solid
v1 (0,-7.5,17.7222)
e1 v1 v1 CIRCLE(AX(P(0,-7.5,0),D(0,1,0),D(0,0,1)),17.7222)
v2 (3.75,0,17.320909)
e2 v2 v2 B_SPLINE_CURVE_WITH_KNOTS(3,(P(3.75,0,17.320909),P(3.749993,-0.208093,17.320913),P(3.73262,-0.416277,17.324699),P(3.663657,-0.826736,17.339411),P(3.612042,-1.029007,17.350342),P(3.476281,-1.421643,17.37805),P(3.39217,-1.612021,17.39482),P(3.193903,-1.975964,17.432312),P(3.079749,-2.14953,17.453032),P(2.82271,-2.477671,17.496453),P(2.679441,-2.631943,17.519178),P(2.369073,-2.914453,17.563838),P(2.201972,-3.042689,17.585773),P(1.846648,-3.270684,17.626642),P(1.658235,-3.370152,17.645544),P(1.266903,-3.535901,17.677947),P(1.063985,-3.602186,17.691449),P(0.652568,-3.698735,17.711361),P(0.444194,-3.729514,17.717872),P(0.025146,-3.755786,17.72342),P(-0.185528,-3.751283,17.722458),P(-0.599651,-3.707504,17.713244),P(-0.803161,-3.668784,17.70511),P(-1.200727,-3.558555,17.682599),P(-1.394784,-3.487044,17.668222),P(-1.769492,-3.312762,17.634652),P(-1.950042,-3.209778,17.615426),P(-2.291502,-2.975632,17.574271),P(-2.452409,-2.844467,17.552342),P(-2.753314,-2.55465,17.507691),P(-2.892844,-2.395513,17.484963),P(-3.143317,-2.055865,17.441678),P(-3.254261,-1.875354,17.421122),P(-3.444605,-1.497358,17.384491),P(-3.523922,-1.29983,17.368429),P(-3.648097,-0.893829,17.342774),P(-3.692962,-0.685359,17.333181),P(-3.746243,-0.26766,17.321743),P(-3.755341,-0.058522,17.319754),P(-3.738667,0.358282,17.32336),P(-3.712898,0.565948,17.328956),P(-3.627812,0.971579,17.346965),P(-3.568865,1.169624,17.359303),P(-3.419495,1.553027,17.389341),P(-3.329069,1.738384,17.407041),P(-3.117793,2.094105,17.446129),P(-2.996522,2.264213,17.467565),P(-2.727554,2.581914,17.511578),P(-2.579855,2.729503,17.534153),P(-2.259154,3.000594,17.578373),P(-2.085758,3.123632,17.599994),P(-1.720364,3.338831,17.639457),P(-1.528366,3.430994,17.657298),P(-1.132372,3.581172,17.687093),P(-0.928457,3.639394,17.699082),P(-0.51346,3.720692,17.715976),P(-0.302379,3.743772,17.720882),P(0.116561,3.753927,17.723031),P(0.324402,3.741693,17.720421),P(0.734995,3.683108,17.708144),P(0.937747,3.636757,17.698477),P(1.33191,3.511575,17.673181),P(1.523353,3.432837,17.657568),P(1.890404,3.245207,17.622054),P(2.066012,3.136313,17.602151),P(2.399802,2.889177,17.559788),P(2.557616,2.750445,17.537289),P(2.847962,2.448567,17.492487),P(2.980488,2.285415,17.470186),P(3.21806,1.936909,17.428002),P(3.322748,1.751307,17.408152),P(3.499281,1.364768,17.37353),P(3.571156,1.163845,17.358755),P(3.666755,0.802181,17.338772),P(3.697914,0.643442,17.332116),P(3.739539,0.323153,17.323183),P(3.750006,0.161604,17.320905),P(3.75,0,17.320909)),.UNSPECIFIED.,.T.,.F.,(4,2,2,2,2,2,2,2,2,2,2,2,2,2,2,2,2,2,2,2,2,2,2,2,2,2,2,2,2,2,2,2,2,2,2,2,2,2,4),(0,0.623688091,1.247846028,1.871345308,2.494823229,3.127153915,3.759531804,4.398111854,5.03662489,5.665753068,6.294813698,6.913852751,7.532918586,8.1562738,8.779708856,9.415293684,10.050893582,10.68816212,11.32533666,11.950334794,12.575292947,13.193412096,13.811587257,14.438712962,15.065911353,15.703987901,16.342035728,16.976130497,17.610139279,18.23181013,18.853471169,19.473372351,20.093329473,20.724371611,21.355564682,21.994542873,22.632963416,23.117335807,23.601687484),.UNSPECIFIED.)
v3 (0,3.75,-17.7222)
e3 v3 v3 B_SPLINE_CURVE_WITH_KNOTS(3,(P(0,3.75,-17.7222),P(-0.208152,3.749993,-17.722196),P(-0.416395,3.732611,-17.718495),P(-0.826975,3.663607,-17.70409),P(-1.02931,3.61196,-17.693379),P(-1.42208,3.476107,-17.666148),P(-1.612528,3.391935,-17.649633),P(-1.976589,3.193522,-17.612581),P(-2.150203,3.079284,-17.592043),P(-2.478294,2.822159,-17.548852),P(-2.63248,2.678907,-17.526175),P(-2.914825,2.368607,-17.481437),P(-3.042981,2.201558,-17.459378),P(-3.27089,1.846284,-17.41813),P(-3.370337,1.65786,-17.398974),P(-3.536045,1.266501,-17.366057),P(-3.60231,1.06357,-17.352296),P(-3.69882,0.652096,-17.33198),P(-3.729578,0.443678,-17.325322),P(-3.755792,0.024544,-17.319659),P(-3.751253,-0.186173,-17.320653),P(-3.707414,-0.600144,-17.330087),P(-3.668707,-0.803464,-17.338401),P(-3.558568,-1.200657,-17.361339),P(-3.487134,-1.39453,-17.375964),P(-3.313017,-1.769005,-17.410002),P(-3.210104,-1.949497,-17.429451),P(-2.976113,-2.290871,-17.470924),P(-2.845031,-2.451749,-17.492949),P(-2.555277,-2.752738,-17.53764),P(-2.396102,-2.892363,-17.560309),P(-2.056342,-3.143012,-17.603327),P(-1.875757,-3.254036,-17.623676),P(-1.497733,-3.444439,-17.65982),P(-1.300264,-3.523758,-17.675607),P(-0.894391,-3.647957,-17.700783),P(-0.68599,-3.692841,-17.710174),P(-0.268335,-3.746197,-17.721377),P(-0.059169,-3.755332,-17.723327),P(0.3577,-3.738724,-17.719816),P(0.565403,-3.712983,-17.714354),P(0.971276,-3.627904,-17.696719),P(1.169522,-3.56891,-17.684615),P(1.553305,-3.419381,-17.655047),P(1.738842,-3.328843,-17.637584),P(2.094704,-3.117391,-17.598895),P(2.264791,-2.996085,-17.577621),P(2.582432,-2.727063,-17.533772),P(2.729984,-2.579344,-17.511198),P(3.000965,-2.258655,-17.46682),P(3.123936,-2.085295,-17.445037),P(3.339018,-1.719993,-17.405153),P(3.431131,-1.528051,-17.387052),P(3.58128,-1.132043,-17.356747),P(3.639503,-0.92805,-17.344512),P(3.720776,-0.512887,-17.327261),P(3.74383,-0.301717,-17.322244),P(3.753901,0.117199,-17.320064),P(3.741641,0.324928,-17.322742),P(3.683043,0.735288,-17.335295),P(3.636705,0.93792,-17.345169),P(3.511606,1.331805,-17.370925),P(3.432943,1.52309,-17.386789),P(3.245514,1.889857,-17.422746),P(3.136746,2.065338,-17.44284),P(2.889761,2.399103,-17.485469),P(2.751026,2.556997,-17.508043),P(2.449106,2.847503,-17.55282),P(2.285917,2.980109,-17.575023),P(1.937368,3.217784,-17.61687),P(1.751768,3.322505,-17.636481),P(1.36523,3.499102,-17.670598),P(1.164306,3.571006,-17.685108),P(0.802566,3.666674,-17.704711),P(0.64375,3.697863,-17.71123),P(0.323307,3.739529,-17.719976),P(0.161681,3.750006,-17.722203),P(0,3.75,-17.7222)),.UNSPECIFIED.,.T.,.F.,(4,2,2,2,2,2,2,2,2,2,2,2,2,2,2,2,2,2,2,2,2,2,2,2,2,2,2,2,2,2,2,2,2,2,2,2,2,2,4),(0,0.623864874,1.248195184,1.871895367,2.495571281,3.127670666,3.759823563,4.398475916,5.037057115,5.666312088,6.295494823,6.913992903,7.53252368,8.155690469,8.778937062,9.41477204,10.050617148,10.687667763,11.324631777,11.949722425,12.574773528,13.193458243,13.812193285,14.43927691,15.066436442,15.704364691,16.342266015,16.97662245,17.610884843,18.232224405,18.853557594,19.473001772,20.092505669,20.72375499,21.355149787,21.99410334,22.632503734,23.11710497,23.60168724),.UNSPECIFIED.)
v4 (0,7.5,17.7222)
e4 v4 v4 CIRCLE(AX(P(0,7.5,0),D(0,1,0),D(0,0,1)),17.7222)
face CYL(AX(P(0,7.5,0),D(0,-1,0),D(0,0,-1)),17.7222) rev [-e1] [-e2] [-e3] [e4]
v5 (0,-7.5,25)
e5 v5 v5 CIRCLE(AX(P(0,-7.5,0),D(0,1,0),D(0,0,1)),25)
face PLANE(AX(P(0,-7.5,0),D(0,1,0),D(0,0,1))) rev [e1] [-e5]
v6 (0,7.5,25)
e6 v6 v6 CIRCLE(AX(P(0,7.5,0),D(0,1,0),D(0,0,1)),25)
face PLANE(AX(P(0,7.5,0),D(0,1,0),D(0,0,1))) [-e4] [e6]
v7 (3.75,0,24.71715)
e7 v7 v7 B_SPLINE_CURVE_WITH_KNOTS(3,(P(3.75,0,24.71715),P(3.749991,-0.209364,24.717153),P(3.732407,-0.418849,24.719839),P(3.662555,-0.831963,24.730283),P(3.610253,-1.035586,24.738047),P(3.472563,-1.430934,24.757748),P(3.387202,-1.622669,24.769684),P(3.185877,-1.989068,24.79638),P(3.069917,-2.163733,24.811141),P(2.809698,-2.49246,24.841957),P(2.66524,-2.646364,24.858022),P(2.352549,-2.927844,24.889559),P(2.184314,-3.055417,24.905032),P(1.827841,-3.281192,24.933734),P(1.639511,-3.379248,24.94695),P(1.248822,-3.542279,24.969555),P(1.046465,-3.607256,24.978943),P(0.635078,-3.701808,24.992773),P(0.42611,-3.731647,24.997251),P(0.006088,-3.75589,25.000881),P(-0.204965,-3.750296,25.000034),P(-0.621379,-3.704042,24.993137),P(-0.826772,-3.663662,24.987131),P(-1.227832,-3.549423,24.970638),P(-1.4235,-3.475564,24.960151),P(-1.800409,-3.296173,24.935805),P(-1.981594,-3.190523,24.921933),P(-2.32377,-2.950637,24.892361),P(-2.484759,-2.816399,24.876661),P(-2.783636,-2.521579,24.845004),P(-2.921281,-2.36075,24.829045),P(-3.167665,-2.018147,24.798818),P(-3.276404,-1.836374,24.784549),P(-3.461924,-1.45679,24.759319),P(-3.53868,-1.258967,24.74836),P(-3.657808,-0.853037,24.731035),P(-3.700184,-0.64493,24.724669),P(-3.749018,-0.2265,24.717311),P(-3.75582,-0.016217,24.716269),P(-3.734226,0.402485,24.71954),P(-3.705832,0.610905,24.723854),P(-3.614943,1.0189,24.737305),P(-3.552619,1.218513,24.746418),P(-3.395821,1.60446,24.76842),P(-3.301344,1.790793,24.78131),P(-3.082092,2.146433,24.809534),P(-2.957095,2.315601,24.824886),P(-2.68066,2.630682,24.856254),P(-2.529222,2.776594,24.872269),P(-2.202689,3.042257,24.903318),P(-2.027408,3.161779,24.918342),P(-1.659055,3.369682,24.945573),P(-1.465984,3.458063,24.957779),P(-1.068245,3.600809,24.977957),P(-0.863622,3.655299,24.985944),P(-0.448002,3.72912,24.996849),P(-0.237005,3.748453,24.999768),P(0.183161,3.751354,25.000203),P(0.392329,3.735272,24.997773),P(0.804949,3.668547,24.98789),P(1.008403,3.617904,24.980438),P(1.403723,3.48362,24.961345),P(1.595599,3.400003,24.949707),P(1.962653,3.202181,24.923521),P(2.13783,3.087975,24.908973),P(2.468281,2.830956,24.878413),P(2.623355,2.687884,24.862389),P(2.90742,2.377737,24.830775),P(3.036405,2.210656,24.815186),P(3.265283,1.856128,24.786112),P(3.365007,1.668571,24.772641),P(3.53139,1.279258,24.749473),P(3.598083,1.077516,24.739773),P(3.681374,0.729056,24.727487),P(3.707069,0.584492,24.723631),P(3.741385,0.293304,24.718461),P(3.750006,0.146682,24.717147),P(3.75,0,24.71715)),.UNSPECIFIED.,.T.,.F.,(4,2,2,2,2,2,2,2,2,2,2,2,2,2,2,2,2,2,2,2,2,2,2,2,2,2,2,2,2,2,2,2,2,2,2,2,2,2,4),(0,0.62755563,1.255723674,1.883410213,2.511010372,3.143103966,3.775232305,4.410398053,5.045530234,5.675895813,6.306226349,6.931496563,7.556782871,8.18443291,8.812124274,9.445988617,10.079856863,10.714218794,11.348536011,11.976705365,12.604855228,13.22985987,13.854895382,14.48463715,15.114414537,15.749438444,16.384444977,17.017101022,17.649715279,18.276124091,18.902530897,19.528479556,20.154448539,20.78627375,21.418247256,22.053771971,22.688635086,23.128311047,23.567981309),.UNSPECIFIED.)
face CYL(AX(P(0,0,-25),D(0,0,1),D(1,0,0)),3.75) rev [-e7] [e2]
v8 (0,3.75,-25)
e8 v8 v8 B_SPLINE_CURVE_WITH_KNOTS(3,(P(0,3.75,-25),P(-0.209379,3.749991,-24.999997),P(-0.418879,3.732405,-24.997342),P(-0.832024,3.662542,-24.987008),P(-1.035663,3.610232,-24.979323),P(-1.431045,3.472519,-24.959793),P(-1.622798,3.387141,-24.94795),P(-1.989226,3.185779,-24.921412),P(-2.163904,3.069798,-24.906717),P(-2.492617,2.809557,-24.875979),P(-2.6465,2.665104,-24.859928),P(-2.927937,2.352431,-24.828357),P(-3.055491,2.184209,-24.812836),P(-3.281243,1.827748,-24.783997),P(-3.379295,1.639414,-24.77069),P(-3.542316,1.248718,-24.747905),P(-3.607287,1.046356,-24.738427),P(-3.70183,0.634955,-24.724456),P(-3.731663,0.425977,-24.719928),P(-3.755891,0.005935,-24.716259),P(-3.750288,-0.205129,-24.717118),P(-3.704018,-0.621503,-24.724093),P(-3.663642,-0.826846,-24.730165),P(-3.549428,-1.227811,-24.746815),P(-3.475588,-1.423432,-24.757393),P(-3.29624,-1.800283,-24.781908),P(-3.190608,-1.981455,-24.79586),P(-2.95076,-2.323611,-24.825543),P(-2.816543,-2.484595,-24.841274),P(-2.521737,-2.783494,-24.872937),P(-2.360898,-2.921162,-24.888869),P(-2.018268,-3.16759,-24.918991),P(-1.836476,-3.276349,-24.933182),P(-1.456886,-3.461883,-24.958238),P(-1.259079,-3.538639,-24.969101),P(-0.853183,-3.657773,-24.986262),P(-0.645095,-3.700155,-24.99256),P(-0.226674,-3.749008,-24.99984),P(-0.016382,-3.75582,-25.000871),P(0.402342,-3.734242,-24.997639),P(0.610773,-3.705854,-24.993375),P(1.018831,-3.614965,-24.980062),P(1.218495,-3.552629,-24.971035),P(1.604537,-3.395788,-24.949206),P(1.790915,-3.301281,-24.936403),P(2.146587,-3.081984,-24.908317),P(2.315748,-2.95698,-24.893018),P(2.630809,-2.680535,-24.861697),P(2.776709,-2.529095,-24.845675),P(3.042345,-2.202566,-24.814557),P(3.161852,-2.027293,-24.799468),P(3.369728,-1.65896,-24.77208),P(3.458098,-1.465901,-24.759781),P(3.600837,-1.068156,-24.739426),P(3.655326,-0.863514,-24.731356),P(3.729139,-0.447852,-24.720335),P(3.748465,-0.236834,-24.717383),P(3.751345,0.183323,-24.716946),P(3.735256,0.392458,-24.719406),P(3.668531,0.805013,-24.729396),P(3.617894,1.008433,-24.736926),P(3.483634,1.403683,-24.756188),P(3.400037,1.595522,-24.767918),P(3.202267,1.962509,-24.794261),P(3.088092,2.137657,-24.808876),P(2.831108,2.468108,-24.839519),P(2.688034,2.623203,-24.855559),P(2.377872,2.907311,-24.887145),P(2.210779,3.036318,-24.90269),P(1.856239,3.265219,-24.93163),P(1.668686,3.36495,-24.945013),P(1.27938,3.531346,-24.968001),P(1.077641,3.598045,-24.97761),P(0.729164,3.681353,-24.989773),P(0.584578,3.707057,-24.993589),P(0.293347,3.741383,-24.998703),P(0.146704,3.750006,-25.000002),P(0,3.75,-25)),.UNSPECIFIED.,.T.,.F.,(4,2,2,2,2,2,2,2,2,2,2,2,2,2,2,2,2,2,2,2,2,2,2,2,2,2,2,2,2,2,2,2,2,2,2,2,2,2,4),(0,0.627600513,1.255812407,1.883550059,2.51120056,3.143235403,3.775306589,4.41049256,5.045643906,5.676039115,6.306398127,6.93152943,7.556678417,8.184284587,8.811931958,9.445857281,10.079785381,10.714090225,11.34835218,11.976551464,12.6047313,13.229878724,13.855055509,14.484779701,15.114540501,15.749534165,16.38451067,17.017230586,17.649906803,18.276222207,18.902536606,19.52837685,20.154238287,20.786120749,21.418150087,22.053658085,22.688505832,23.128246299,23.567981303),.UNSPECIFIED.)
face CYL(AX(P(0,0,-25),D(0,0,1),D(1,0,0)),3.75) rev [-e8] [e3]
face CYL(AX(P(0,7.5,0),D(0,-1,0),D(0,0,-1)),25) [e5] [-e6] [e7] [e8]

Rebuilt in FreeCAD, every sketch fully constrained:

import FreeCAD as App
import Part
import Sketcher

doc = App.newDocument("Part")
body = doc.addObject("PartDesign::Body", "Body")

# Sketch on XZ plane
sketch1 = body.newObject("Sketcher::SketchObject", "Sketch")
sketch1.AttachmentSupport = (doc.getObject("XZ_Plane"), [""])
sketch1.MapMode = "FlatFace"
sketch1.addGeometry([
    Part.Circle(App.Vector(0, 0, 0), App.Vector(0, 0, 1), 25),
    Part.Circle(App.Vector(0, 0, 0), App.Vector(0, 0, 1), 18),
], False)
sketch1.addConstraint([
    Sketcher.Constraint("Coincident", 0, 3, -1, 1),
    Sketcher.Constraint("Coincident", 1, 3, -1, 1),
    Sketcher.Constraint("Diameter", 0, 50.0),
    Sketcher.Constraint("Diameter", 1, 35.4444),
])
pad1 = body.newObject("PartDesign::Pad", "Pad")
pad1.Profile = sketch1
pad1.Length = 15
pad1.Midplane = True

# Sketch on XY plane
sketch2 = body.newObject("Sketcher::SketchObject", "Sketch001")
sketch2.AttachmentSupport = (doc.getObject("XY_Plane"), [""])
sketch2.MapMode = "FlatFace"
sketch2.addGeometry(Part.Circle(App.Vector(0, 0, 0), App.Vector(0, 0, 1), 3.8), False)
sketch2.addConstraint([
    Sketcher.Constraint("Coincident", 0, 3, -1, 1),
    Sketcher.Constraint("Diameter", 0, 7.5),
])
pocket1 = body.newObject("PartDesign::Pocket", "Pocket")
pocket1.Profile = sketch2
pocket1.Type = "ThroughAll"
pocket1.Midplane = True

doc.recompute()
